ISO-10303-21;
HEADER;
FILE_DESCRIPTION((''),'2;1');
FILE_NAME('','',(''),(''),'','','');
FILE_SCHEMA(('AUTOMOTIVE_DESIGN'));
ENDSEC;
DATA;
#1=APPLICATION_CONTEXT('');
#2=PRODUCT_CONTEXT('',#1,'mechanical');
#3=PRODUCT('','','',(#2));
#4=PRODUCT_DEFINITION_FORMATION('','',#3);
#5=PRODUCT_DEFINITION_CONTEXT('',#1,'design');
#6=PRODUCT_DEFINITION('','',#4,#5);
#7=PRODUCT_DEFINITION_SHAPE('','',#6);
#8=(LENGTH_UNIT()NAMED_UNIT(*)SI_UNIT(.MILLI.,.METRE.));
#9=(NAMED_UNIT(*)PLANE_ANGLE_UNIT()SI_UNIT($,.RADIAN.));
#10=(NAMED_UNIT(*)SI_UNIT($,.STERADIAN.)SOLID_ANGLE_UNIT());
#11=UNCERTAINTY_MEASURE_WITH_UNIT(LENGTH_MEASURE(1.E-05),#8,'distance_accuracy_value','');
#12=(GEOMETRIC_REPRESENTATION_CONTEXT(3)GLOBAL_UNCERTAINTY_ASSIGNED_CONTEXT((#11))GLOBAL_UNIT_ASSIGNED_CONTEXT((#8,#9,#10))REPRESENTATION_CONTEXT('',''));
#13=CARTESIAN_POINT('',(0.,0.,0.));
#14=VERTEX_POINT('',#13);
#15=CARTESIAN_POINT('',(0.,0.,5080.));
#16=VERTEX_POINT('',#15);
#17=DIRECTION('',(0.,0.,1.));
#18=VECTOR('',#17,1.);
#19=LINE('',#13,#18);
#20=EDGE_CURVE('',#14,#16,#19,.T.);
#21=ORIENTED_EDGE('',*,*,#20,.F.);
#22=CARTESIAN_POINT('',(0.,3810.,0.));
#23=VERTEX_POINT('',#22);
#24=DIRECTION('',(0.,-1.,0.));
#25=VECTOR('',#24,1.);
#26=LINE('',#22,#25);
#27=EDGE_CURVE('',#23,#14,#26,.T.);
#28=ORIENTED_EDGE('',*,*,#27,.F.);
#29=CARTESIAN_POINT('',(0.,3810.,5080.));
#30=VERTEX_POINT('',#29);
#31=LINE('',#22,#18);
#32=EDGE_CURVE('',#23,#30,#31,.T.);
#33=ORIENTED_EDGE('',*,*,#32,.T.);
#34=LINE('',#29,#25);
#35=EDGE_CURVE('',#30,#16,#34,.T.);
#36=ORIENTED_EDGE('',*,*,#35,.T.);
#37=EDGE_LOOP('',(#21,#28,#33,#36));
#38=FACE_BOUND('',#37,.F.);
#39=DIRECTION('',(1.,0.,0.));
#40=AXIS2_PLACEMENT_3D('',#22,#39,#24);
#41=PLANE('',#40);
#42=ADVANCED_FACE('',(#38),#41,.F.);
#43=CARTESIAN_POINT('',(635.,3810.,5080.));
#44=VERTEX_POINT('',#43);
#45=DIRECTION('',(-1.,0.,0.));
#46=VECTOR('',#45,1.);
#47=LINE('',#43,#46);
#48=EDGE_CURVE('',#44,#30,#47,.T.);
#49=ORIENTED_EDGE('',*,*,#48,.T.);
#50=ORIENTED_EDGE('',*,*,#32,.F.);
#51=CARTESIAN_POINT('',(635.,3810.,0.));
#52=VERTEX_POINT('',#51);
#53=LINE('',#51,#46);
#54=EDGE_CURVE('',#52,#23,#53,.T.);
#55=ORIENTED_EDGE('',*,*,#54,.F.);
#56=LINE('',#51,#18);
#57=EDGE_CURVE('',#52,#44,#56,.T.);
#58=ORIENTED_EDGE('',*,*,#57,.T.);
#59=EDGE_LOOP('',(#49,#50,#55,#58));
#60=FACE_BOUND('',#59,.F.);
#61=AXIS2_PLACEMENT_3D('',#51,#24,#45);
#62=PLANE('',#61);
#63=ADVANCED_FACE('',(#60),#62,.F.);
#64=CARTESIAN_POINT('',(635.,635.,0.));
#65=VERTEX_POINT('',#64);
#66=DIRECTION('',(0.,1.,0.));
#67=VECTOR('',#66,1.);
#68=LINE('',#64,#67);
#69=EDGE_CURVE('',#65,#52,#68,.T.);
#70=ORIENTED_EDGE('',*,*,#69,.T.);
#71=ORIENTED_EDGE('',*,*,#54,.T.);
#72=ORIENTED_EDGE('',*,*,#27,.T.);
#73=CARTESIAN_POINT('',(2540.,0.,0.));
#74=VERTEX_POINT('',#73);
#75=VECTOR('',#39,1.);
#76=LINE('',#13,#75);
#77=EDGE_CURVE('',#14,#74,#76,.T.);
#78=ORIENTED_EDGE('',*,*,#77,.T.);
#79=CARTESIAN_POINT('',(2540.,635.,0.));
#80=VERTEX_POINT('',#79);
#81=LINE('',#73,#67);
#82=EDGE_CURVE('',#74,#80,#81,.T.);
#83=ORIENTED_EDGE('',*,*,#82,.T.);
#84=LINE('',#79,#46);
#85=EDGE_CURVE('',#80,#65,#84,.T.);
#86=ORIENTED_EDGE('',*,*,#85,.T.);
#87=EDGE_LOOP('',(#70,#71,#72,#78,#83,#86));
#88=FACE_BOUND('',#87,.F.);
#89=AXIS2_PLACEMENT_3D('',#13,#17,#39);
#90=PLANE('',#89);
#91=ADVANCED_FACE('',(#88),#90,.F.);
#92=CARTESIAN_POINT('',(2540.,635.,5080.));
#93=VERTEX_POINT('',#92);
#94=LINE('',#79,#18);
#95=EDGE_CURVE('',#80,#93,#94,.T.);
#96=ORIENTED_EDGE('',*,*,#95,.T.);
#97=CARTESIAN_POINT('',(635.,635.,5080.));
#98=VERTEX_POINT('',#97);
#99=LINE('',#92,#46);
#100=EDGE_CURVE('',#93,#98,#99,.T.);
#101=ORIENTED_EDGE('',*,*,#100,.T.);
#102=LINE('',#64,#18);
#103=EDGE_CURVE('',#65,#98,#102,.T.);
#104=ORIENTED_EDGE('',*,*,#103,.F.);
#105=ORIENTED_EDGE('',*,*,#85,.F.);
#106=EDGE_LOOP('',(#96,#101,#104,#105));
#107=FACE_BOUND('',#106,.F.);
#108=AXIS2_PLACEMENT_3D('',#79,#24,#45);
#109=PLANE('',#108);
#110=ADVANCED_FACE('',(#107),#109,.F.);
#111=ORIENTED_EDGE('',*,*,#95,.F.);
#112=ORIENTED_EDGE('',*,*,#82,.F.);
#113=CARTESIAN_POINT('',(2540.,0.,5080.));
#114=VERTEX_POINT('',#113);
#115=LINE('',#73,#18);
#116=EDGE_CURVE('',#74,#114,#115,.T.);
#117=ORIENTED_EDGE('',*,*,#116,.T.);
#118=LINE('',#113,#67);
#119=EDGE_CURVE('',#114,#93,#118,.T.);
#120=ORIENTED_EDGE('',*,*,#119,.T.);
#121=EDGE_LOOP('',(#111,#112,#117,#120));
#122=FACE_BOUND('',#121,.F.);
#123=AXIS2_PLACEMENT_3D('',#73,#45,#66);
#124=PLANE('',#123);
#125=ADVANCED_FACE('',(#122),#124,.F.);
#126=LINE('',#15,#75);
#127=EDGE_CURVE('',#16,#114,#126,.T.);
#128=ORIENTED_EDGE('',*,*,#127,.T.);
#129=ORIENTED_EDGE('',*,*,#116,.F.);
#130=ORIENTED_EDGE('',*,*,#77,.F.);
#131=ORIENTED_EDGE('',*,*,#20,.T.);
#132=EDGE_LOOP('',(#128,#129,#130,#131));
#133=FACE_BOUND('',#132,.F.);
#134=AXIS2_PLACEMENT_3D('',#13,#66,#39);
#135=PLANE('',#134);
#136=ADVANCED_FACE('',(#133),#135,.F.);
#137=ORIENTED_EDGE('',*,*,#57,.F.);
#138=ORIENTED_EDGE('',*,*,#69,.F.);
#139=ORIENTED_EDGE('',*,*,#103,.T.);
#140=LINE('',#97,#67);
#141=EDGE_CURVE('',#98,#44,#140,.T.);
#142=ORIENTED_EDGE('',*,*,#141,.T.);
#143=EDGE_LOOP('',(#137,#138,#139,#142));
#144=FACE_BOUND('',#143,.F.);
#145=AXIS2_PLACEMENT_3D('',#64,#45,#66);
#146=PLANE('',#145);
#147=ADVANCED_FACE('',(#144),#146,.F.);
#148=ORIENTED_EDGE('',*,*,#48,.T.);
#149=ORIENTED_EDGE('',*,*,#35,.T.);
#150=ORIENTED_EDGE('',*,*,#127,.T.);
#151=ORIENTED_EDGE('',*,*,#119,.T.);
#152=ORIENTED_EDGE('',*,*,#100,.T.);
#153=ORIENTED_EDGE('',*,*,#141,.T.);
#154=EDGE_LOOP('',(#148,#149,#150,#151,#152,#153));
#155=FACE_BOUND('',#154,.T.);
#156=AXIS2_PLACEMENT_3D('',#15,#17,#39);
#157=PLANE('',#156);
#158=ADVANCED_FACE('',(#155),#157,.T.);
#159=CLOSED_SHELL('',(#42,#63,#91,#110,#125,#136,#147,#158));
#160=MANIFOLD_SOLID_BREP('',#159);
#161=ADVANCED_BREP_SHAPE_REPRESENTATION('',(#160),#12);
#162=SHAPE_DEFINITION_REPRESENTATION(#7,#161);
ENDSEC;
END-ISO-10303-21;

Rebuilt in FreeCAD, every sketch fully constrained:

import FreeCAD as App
import Part
import Sketcher
from FreeCAD import Vector
Q = App.Units.Quantity

doc = App.newDocument("Part")
params = doc.addObject("Spreadsheet::Sheet", "Params")
for row, (alias, value) in enumerate([
    ("sketch1_width", "100 in"),
    ("sketch1_width2", "75 in"),
    ("sketch1_height", "150 in"),
    ("pad1_length", "200 in"),
], start=1):
    params.set(f"A{row}", alias)
    params.set(f"B{row}", "=" + value)
    params.setAlias(f"B{row}", alias)

body = doc.addObject("PartDesign::Body", "Body")

# Sketch on XY plane
sketch1 = doc.addObject("Sketcher::SketchObject", "Sketch")
body.addObject(sketch1)
sketch1.AttachmentSupport = (doc.XY_Plane, [""])
sketch1.MapMode = "FlatFace"
sketch1.addGeometry([
    Part.LineSegment(Vector(0, 3810, 0), Vector(0, 0, 0)),  # 0
    Part.LineSegment(Vector(0, 0, 0), Vector(2540, 0, 0)),  # 1
    Part.LineSegment(Vector(2540, 0, 0), Vector(2540, 635, 0)),  # 2
    Part.LineSegment(Vector(2540, 635, 0), Vector(635, 635, 0)),  # 3
    Part.LineSegment(Vector(635, 635, 0), Vector(635, 3810, 0)),  # 4
    Part.LineSegment(Vector(635, 3810, 0), Vector(0, 3810, 0)),  # 5
], False)
sketch1.addConstraint([
    Sketcher.Constraint("Coincident", 0, 2, 1, 1),
    Sketcher.Constraint("Coincident", 1, 2, 2, 1),
    Sketcher.Constraint("Coincident", 2, 2, 3, 1),
    Sketcher.Constraint("Coincident", 3, 2, 4, 1),
    Sketcher.Constraint("Coincident", 4, 2, 5, 1),
    Sketcher.Constraint("Coincident", 5, 2, 0, 1),
    Sketcher.Constraint("Vertical", 0),
    Sketcher.Constraint("Horizontal", 1),
    Sketcher.Constraint("Vertical", 2),
    Sketcher.Constraint("Horizontal", 3),
    Sketcher.Constraint("Vertical", 4),
    Sketcher.Constraint("Horizontal", 5),
    Sketcher.Constraint("Coincident", 0, 2, -1, 1),
    Sketcher.Constraint("Equal", 5, 2),
    Sketcher.Constraint("DistanceX", 1, 1, 1, 2, Q("100 in")),
    Sketcher.Constraint("DistanceX", 3, 2, 3, 1, Q("75 in")),
    Sketcher.Constraint("DistanceY", 0, 2, 0, 1, Q("150 in")),
])
sketch1.setExpression("Constraints[14]", "Params.sketch1_width")
sketch1.setExpression("Constraints[15]", "Params.sketch1_width2")
sketch1.setExpression("Constraints[16]", "Params.sketch1_height")
pad1 = doc.addObject("PartDesign::Pad", "Pad")
body.addObject(pad1)
pad1.Profile = sketch1
pad1.setExpression("Length", "Params.pad1_length")

doc.recompute()
